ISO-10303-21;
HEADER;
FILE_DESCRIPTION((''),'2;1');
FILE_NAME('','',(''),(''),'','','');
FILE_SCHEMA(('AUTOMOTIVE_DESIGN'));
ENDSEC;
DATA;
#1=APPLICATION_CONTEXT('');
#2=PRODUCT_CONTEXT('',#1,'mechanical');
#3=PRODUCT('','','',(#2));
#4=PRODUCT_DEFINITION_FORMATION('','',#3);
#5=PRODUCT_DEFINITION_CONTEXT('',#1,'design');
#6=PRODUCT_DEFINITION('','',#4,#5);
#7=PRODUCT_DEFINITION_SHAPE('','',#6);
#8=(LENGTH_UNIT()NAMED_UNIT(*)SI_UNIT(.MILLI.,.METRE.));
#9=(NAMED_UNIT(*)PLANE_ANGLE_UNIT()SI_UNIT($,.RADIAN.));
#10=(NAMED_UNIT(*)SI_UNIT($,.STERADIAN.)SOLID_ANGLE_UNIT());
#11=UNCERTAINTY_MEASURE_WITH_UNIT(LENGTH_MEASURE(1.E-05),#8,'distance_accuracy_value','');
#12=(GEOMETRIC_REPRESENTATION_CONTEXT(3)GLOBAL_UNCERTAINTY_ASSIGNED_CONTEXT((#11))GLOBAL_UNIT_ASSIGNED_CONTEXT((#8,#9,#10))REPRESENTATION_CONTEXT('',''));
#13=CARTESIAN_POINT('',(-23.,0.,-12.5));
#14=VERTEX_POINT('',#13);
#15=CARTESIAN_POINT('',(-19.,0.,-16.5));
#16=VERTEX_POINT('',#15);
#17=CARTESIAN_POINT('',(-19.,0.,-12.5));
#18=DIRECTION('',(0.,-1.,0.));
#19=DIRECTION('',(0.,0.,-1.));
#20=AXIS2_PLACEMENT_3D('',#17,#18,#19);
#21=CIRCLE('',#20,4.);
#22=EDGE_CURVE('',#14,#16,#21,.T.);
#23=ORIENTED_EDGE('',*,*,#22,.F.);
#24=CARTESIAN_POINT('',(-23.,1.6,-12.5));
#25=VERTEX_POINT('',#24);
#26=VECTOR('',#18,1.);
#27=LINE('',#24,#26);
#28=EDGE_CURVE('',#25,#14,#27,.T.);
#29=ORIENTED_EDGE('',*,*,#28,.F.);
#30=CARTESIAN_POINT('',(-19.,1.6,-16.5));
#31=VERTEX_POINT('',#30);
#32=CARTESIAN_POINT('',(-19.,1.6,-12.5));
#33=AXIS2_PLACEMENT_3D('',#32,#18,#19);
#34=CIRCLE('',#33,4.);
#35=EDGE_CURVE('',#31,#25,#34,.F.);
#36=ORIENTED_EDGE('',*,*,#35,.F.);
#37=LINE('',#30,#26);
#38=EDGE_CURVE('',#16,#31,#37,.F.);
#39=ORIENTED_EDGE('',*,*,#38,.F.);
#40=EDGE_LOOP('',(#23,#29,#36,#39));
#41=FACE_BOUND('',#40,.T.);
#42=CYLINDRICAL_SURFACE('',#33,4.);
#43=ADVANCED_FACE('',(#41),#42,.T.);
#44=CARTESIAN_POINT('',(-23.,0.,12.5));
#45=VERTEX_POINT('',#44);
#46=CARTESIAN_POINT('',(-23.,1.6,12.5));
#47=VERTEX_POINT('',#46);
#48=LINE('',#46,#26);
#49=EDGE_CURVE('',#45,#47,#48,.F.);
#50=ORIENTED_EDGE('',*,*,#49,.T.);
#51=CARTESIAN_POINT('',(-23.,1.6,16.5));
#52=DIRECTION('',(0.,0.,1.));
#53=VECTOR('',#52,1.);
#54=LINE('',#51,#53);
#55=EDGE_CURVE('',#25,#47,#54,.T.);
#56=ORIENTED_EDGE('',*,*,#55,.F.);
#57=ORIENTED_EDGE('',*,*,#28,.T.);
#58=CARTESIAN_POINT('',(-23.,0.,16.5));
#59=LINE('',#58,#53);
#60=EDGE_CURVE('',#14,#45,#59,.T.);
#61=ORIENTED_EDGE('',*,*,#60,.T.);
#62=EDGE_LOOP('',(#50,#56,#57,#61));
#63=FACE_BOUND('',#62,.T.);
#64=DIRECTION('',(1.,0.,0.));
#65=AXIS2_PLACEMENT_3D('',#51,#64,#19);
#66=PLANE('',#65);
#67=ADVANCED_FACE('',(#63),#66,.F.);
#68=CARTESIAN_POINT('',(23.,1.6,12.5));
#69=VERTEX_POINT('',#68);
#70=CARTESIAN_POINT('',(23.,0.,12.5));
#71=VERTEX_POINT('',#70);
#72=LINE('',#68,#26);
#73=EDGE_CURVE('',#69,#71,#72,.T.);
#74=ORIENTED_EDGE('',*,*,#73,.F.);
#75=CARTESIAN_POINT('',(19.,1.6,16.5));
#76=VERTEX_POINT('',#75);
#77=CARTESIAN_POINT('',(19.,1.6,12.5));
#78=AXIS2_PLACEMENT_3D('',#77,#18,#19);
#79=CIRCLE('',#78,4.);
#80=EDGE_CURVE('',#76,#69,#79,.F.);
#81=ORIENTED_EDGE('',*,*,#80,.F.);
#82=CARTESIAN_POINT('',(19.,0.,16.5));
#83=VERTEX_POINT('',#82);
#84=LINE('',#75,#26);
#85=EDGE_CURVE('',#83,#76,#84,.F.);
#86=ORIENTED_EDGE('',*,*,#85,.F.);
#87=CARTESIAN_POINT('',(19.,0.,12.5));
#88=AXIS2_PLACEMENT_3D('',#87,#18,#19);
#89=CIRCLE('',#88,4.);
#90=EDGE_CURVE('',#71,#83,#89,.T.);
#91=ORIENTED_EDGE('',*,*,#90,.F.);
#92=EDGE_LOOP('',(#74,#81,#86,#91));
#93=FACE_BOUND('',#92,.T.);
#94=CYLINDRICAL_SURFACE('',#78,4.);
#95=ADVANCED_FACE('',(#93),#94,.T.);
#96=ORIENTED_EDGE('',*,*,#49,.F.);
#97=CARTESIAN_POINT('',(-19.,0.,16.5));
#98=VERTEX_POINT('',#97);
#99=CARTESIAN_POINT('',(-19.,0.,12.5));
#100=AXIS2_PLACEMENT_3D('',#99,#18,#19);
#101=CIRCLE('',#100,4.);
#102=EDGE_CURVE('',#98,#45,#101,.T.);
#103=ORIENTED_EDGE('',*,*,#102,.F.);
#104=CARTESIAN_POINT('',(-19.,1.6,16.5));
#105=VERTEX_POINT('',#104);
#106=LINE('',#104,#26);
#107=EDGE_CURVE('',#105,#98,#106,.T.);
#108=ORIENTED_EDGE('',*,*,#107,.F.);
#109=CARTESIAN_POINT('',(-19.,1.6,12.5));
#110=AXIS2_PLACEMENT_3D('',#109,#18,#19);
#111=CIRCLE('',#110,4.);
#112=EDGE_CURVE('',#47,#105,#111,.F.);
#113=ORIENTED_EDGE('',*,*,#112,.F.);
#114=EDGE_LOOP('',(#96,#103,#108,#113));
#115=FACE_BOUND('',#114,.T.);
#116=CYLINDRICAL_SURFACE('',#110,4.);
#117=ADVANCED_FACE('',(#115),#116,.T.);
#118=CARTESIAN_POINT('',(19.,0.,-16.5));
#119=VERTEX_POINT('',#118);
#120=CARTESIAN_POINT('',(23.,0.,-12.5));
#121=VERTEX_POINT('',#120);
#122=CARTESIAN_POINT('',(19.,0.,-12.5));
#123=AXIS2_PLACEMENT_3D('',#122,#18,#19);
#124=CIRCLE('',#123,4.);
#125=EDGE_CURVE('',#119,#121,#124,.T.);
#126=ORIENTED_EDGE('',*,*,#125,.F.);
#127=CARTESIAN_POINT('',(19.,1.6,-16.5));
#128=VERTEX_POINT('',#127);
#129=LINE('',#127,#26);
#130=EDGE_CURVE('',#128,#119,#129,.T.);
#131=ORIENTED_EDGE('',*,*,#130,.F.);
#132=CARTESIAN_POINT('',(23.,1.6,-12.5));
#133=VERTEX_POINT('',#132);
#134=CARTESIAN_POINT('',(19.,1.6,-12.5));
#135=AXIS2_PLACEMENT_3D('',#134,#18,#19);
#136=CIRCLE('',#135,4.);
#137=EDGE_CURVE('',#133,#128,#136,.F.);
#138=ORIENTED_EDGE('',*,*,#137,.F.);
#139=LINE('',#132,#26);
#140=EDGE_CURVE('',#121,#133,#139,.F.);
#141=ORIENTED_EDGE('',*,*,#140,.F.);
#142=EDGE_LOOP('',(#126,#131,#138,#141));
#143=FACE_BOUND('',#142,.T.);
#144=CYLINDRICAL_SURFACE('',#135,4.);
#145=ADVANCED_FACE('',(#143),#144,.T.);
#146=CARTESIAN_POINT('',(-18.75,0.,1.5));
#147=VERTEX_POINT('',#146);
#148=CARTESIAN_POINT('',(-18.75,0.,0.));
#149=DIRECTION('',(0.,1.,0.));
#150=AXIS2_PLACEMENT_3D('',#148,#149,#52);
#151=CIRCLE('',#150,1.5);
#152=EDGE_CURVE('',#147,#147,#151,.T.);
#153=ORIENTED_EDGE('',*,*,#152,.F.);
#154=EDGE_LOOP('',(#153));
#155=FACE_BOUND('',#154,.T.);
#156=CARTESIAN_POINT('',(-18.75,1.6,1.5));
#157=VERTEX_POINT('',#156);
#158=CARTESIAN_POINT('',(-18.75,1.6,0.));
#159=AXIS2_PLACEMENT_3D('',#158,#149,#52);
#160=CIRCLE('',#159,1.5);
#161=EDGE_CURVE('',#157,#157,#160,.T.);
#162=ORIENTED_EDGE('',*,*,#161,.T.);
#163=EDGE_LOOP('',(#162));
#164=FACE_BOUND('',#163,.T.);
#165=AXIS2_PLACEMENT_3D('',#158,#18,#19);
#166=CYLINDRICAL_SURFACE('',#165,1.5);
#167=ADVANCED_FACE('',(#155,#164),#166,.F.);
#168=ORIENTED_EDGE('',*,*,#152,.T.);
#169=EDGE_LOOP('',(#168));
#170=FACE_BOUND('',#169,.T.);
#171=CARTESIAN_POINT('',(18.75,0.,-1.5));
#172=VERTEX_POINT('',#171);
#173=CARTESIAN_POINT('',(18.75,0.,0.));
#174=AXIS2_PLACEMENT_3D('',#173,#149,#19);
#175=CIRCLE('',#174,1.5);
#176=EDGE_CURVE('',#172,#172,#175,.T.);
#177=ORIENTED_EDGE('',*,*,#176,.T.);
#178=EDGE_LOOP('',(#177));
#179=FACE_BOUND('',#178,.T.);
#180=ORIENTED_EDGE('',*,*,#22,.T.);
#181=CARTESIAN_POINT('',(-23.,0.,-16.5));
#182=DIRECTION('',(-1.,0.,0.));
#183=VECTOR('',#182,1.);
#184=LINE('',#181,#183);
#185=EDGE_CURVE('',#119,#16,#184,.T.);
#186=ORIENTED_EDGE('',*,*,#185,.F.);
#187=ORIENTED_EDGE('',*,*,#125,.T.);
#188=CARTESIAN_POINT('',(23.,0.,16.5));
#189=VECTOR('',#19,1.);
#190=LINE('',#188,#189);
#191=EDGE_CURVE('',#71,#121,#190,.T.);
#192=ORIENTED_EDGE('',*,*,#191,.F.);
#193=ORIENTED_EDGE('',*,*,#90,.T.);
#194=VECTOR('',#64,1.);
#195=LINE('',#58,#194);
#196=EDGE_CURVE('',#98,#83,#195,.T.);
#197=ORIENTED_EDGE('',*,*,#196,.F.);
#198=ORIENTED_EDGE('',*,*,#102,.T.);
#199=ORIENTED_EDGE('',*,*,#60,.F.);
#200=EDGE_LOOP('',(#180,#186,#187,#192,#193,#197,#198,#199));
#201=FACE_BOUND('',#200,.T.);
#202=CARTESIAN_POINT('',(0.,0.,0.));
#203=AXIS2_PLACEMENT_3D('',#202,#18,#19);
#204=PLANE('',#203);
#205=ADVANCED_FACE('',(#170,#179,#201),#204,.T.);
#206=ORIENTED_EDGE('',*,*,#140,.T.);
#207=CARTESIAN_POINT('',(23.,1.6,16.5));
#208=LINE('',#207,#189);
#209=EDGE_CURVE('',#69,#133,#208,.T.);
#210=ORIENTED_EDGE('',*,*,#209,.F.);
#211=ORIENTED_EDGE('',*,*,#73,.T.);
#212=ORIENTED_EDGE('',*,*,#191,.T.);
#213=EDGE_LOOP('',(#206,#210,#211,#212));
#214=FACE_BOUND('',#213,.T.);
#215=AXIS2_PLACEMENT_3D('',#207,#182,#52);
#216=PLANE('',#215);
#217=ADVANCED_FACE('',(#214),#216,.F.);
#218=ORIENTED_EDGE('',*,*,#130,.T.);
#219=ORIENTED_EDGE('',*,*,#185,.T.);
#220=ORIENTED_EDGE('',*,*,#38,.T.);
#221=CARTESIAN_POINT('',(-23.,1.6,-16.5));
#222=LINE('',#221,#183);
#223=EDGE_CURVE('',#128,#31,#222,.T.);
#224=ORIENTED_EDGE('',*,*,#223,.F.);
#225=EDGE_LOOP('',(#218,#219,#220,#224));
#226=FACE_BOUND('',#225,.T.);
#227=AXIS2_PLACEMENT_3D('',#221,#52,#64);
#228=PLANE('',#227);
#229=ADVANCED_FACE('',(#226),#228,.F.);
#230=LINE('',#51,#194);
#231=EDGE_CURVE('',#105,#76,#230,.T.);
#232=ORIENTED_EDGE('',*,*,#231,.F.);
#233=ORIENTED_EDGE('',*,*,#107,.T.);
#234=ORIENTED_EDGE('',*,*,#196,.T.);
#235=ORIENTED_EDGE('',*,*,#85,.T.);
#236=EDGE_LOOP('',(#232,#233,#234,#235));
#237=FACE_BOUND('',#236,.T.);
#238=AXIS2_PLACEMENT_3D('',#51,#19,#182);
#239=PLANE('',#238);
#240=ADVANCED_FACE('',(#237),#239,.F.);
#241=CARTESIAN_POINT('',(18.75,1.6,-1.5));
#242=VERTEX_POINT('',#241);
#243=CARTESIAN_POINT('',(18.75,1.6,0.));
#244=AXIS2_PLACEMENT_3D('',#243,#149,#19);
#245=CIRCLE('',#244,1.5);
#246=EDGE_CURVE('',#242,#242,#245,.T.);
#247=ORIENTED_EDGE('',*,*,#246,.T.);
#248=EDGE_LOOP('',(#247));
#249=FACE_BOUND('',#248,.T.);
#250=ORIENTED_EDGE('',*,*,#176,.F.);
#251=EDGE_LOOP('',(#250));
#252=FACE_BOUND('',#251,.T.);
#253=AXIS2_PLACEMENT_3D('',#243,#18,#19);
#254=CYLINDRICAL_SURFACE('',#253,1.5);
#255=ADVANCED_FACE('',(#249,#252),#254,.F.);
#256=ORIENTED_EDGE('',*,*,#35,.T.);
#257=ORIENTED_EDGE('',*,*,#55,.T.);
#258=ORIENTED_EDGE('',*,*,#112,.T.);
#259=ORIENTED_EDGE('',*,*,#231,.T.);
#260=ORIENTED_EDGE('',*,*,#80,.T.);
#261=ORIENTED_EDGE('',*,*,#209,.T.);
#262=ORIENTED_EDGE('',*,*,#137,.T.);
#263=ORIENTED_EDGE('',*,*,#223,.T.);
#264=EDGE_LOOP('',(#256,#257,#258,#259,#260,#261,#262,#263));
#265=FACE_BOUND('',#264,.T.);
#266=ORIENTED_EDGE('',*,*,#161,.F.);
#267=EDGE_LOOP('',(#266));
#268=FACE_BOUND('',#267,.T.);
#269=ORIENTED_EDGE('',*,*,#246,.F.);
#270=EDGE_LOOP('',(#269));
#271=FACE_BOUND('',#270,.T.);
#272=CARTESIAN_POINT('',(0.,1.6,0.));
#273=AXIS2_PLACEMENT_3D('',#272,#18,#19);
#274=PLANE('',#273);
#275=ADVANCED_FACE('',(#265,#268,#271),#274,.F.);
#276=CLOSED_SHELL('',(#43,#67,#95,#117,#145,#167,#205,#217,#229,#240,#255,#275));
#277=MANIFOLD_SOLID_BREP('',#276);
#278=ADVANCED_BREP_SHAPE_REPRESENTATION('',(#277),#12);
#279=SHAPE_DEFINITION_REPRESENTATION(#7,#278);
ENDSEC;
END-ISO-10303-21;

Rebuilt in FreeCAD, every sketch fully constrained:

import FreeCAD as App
import Part
import Sketcher


def edges_at(feature, points):
    """Names of the edges that pass closest to the given points."""
    edges = feature.Shape.Edges
    near = lambda p: min(range(len(edges)), key=lambda i: edges[i].distToShape(Part.Vertex(*p))[0])
    return sorted({f"Edge{near(p) + 1}" for p in points})


def add_polygon(sketch, points):
    """Adds a closed chain of lines whose ends are joined by coincident constraints."""
    first, n = sketch.GeometryCount, len(points)
    for a, b in zip(points, points[1:] + points[:1]):
        sketch.addGeometry(Part.LineSegment(App.Vector(*a, 0), App.Vector(*b, 0)), False)
    for i in range(n):
        sketch.addConstraint(Sketcher.Constraint("Coincident", first + i, 2, first + (i + 1) % n, 1))

doc = App.newDocument("Part")
body = doc.addObject("PartDesign::Body", "Body")

# Sketch on XZ plane
sketch1 = body.newObject("Sketcher::SketchObject", "Sketch")
sketch1.AttachmentSupport = (doc.getObject("XZ_Plane"), [""])
sketch1.MapMode = "FlatFace"
add_polygon(sketch1, [(-23, -16.5), (-23, 16.5), (23, 16.5), (23, -16.5)])  # lines 0-3
sketch1.addGeometry(Part.Circle(App.Vector(-18.8, 0, 0), App.Vector(0, 0, 1), 1.5), False)  # 4
sketch1.addGeometry(Part.Circle(App.Vector(18.8, 0, 0), App.Vector(0, 0, 1), 1.5), False)  # 5
sketch1.addConstraint(Sketcher.Constraint("Vertical", 0))
sketch1.addConstraint(Sketcher.Constraint("Horizontal", 1))
sketch1.addConstraint(Sketcher.Constraint("Vertical", 2))
sketch1.addConstraint(Sketcher.Constraint("Horizontal", 3))
sketch1.addConstraint(Sketcher.Constraint("Equal", 4, 5))
sketch1.addConstraint(Sketcher.Constraint("Symmetric", 4, 3, 5, 3, -1, 1))
sketch1.addConstraint(Sketcher.Constraint("Symmetric", 0, 2, 2, 2, -1, 1))
sketch1.addConstraint(Sketcher.Constraint("PointOnObject", 4, 3, -1))
sketch1.addConstraint(Sketcher.Constraint("Diameter", 4, 3.0))
sketch1.addConstraint(Sketcher.Constraint("DistanceX", 1, 1, 1, 2, 46.0))
sketch1.addConstraint(Sketcher.Constraint("DistanceY", 0, 1, 0, 2, 33.0))
sketch1.addConstraint(Sketcher.Constraint("DistanceX", 4, 3, 5, 3, 37.5))
pad1 = body.newObject("PartDesign::Pad", "Pad")
pad1.Profile = sketch1
pad1.Length = 1.6
pad1.Reversed = True
doc.recompute()

fillet = body.newObject("PartDesign::Fillet", "Fillet")
fillet.Base = (pad1, edges_at(pad1, [
    (23, 0.8, 16.5),
    (-23, 0.8, 16.5),
    (-23, 0.8, -16.5),
    (23, 0.8, -16.5),
]))
fillet.Radius = 4

doc.recompute()
